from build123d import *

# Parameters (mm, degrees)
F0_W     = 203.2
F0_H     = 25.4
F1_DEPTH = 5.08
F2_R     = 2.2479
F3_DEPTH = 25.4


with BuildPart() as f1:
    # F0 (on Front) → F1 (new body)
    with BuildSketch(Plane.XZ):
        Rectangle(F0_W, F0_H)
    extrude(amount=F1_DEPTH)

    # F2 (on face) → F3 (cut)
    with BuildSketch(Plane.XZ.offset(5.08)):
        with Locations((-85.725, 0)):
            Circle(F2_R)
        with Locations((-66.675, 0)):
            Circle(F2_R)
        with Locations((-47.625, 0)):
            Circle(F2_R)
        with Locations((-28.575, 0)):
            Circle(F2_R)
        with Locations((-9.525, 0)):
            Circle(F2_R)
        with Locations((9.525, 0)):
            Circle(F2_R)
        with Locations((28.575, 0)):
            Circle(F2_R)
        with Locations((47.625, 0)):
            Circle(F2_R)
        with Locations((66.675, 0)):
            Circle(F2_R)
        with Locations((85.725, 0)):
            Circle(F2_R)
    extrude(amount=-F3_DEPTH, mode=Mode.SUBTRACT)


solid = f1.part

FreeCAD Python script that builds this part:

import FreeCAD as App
import Part
import Sketcher
from FreeCAD import Vector
Q = App.Units.Quantity

doc = App.newDocument("Part")
body = doc.addObject("PartDesign::Body", "Body")

sketch1 = body.newObject("Sketcher::SketchObject", "Sketch")
sketch1.AttachmentSupport = (doc.getObject("XZ_Plane"), [""])
sketch1.MapMode = "FlatFace"
sketch1.addGeometry([
    Part.LineSegment(Vector(-102, 13, 0), Vector(-102, -13, 0)),
    Part.LineSegment(Vector(-102, -13, 0), Vector(102, -13, 0)),
    Part.LineSegment(Vector(102, -13, 0), Vector(102, 13, 0)),
    Part.LineSegment(Vector(102, 13, 0), Vector(-102, 13, 0)),
], False)
sketch1.addConstraint([
    Sketcher.Constraint("Coincident", 0, 2, 1, 1),
    Sketcher.Constraint("Coincident", 1, 2, 2, 1),
    Sketcher.Constraint("Coincident", 2, 2, 3, 1),
    Sketcher.Constraint("Coincident", 3, 2, 0, 1),
    Sketcher.Constraint("Vertical", 0),
    Sketcher.Constraint("Horizontal", 1),
    Sketcher.Constraint("Vertical", 2),
    Sketcher.Constraint("Horizontal", 3),
    Sketcher.Constraint("Symmetric", 0, 2, 2, 2, -1, 1),
    Sketcher.Constraint("DistanceX", 1, 1, 1, 2, Q("8 in")),
    Sketcher.Constraint("DistanceY", 0, 2, 0, 1, Q("1 in")),
])
pad1 = body.newObject("PartDesign::Pad", "Pad")
pad1.Profile = sketch1
pad1.Length = Q("0.2 in")

sketch2 = body.newObject("Sketcher::SketchObject", "Sketch001")
sketch2.AttachmentSupport = (doc.getObject("XZ_Plane"), [""])
sketch2.MapMode = "FlatFace"
sketch2.AttachmentOffset = App.Placement(Vector(0, 0, 0.2 * 25.4), App.Rotation())
sketch2.addGeometry([
    Part.Circle(Vector(-85.7, 0, 0), Vector(0, 0, 1), 2.2),
    Part.Circle(Vector(-66.7, 0, 0), Vector(0, 0, 1), 2.2),
    Part.Circle(Vector(-47.6, 0, 0), Vector(0, 0, 1), 2.2),
    Part.Circle(Vector(-28.6, 0, 0), Vector(0, 0, 1), 2.2),
    Part.Circle(Vector(-9.5, 0, 0), Vector(0, 0, 1), 2.2),
    Part.Circle(Vector(9.5, 0, 0), Vector(0, 0, 1), 2.2),
    Part.Circle(Vector(28.6, 0, 0), Vector(0, 0, 1), 2.2),
    Part.Circle(Vector(47.6, 0, 0), Vector(0, 0, 1), 2.2),
    Part.Circle(Vector(66.7, 0, 0), Vector(0, 0, 1), 2.2),
    Part.Circle(Vector(85.7, 0, 0), Vector(0, 0, 1), 2.2),
], False)
sketch2.addConstraint([
    Sketcher.Constraint("Equal", 0, 1),
    Sketcher.Constraint("Equal", 1, 2),
    Sketcher.Constraint("Equal", 2, 3),
    Sketcher.Constraint("Equal", 3, 4),
    Sketcher.Constraint("Equal", 4, 5),
    Sketcher.Constraint("Equal", 5, 6),
    Sketcher.Constraint("Equal", 6, 7),
    Sketcher.Constraint("Equal", 7, 8),
    Sketcher.Constraint("Equal", 8, 9),
    Sketcher.Constraint("Symmetric", 4, 3, 5, 3, -1, 1),
    Sketcher.Constraint("Symmetric", 3, 3, 6, 3, -1, 1),
    Sketcher.Constraint("Symmetric", 2, 3, 7, 3, -1, 1),
    Sketcher.Constraint("Symmetric", 1, 3, 8, 3, -1, 1),
    Sketcher.Constraint("Symmetric", 0, 3, 9, 3, -1, 1),
    Sketcher.Constraint("PointOnObject", 0, 3, -1),
    Sketcher.Constraint("PointOnObject", 1, 3, -1),
    Sketcher.Constraint("PointOnObject", 2, 3, -1),
    Sketcher.Constraint("PointOnObject", 3, 3, -1),
    Sketcher.Constraint("PointOnObject", 4, 3, -1),
    Sketcher.Constraint("Diameter", 0, Q("0.177 in")),
    Sketcher.Constraint("DistanceX", 0, 3, 4, 3, Q("3 in")),
    Sketcher.Constraint("DistanceX", 1, 3, 5, 3, Q("3 in")),
    Sketcher.Constraint("DistanceX", 2, 3, 6, 3, Q("3 in")),
    Sketcher.Constraint("DistanceX", 0, 3, 2, 3, Q("1.5 in")),
    Sketcher.Constraint("DistanceX", 0, 3, 1, 3, Q("0.75 in")),
])
pocket1 = body.newObject("PartDesign::Pocket", "Pocket")
pocket1.Profile = sketch2
pocket1.Length = Q("1 in")

doc.recompute()
